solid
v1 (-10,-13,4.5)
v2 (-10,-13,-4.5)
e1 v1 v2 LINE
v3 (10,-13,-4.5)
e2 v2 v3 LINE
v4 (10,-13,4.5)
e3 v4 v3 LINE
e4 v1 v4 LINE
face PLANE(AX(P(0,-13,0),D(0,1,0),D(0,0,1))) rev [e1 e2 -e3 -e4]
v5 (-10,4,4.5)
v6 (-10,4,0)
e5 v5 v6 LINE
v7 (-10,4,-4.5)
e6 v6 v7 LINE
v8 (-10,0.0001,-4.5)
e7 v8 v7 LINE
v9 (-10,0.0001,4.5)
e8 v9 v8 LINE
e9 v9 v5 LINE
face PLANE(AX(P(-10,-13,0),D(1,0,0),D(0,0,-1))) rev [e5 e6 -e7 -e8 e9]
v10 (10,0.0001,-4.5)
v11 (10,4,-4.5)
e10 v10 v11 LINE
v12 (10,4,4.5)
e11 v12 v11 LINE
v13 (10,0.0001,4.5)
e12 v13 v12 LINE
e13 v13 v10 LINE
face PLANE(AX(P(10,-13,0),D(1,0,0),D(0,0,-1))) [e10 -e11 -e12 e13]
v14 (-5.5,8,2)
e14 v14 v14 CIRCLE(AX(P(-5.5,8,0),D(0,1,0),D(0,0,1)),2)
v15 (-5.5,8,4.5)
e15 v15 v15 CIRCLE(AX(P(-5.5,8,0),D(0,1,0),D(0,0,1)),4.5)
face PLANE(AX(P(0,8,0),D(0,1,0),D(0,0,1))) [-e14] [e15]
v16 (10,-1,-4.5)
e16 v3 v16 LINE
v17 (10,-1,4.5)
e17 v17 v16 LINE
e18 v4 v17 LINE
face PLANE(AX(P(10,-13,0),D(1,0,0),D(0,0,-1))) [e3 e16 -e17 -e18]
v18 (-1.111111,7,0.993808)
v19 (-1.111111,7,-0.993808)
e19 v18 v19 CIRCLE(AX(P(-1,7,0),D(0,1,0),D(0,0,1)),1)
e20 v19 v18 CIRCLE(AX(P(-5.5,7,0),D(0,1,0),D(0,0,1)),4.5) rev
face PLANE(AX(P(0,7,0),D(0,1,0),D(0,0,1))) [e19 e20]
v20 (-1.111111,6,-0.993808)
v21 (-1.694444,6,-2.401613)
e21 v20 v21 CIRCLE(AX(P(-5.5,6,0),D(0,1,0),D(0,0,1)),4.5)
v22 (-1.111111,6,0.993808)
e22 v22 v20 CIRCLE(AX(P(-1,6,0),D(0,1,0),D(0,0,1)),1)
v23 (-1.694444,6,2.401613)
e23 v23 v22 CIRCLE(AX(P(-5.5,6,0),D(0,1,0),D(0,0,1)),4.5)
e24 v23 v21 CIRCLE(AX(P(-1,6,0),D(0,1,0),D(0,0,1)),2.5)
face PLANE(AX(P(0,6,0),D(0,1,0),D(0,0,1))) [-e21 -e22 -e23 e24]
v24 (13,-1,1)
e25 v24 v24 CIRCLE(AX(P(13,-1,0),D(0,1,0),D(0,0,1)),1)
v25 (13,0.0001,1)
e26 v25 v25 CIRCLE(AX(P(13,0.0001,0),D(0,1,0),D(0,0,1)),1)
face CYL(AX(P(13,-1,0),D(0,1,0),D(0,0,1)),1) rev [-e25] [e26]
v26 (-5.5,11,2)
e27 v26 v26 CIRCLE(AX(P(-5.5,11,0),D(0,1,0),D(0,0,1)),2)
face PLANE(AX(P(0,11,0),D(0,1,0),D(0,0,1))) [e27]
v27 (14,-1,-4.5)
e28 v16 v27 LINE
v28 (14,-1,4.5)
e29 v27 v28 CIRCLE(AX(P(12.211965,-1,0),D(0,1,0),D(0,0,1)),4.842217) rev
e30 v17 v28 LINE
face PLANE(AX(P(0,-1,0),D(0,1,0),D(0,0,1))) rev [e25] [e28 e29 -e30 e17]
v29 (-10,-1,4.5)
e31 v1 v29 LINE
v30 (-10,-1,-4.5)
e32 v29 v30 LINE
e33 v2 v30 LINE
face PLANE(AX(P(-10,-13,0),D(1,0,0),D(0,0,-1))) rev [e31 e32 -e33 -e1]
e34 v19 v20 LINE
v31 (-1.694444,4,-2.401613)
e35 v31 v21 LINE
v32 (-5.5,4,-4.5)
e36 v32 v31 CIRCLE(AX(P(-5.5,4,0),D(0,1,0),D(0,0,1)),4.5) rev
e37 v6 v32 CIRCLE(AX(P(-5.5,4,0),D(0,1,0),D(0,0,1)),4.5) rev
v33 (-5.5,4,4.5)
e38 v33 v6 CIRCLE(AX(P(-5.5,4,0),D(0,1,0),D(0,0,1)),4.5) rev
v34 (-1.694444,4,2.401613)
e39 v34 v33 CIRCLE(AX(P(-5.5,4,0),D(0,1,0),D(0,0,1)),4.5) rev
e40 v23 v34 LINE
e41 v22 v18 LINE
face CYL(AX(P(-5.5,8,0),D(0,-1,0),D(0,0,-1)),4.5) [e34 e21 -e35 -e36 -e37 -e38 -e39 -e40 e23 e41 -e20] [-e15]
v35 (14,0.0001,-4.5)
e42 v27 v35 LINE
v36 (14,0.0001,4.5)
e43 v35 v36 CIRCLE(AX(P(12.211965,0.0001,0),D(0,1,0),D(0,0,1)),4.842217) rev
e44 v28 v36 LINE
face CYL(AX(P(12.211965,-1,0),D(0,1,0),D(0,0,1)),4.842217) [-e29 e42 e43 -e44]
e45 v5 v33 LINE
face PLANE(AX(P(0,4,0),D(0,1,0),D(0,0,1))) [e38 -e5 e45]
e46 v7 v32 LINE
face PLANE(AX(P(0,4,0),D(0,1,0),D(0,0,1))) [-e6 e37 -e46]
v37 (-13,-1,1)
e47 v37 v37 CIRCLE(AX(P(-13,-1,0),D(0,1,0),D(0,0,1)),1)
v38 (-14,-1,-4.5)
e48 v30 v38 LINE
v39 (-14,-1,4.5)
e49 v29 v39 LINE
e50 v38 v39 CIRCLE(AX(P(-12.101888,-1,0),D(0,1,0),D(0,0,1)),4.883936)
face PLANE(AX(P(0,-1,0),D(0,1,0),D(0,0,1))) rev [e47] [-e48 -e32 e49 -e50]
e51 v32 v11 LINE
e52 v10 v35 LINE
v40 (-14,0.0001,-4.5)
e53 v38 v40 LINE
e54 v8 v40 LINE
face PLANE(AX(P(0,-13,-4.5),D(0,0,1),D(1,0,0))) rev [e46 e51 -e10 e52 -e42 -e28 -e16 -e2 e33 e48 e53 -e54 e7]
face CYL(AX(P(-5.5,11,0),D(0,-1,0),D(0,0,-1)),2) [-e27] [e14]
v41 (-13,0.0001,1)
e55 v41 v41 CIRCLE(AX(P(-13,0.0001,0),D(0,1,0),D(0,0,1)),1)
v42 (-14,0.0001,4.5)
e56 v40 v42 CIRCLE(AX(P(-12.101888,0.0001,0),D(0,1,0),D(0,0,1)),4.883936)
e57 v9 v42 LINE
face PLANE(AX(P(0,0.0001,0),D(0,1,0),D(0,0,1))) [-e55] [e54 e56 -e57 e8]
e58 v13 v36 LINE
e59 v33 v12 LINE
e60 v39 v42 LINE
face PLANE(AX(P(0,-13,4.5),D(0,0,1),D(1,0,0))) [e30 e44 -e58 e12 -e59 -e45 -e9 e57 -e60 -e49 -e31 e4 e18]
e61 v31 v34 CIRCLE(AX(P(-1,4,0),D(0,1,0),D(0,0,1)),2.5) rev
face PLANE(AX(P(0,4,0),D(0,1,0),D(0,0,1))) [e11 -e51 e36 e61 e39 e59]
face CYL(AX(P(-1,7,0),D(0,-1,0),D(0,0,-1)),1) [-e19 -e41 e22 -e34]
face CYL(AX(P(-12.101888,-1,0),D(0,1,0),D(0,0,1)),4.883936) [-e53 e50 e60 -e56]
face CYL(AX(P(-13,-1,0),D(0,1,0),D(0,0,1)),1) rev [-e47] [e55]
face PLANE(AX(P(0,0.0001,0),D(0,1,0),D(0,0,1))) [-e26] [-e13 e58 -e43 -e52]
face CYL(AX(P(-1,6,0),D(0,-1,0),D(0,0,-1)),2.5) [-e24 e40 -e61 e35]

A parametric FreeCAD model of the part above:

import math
import FreeCAD as App
import Part
import Sketcher
from FreeCAD import Vector


def add_polygon(sketch, points):
    """Adds a closed chain of lines whose ends are joined by coincident constraints."""
    first, n = sketch.GeometryCount, len(points)
    for a, b in zip(points, points[1:] + points[:1]):
        sketch.addGeometry(Part.LineSegment(App.Vector(*a, 0), App.Vector(*b, 0)), False)
    for i in range(n):
        sketch.addConstraint(Sketcher.Constraint("Coincident", first + i, 2, first + (i + 1) % n, 1))

doc = App.newDocument("Part")
params = doc.addObject("Spreadsheet::Sheet", "Params")
for row, (alias, value) in enumerate([
    ("sketch1_width", "20 mm"),
    ("sketch1_height", "9 mm"),
    ("pad1_length", "4 mm"),
    ("pad1_length2", "13 mm"),
    ("sketch2_diameter", "2 mm"),
    ("sketch2_width", "4 mm"),
    ("sketch2_height", "9 mm"),
    ("pad2_length", "0.0001 mm"),
    ("pad2_length2", "1 mm"),
    ("sketch3_diameter", "2 mm"),
    ("pad3_length", "7 mm"),
    ("sketch4_diameter", "4 mm"),
    ("pad4_length", "11 mm"),
    ("sketch5_diameter", "9 mm"),
    ("pad5_length", "8 mm"),
    ("sketch6_radius", "4.5 mm"),
    ("sketch6_radius2", "2.5 mm"),
    ("pad6_length", "6 mm"),
], start=1):
    params.set(f"A{row}", alias)
    params.set(f"B{row}", "=" + value)
    params.setAlias(f"B{row}", alias)

body = doc.addObject("PartDesign::Body", "Body")

sketch1 = body.newObject("Sketcher::SketchObject", "Sketch")
sketch1.AttachmentSupport = (doc.getObject("XZ_Plane"), [""])
sketch1.MapMode = "FlatFace"
add_polygon(sketch1, [(10, 4), (10, -4), (-10, -4), (-10, 4)])
sketch1.addConstraint([
    Sketcher.Constraint("Vertical", 0),
    Sketcher.Constraint("Horizontal", 1),
    Sketcher.Constraint("Vertical", 2),
    Sketcher.Constraint("Horizontal", 3),
    Sketcher.Constraint("Symmetric", 0, 2, 2, 2, -1, 1),
    Sketcher.Constraint("DistanceX", 1, 2, 1, 1, 20.0),
    Sketcher.Constraint("DistanceY", 0, 2, 0, 1, 9.0),
])
sketch1.setExpression("Constraints[9]", "Params.sketch1_width")
sketch1.setExpression("Constraints[10]", "Params.sketch1_height")
pad1 = body.newObject("PartDesign::Pad", "Pad")
pad1.Profile = sketch1
pad1.Type = "TwoLengths"
pad1.setExpression("Length", "Params.pad1_length")
pad1.setExpression("Length2", "Params.pad1_length2")
pad1.Reversed = True

sketch2 = body.newObject("Sketcher::SketchObject", "Sketch001")
sketch2.AttachmentSupport = (doc.getObject("XZ_Plane"), [""])
sketch2.MapMode = "FlatFace"
sketch2.addGeometry([
    Part.LineSegment(Vector(-14, 4.5, 0), Vector(-10, 4.5, 0)),
    Part.LineSegment(Vector(-10, 4.5, 0), Vector(-10, -4.5, 0)),
    Part.LineSegment(Vector(-10, -4.5, 0), Vector(-14, -4.5, 0)),
    Part.ArcOfCircle(Part.Circle(Vector(-12.1, 0, 0), Vector(0, 0, 1), 4.9), math.radians(113), math.radians(247)),
    Part.Circle(Vector(-13, 0, 0), Vector(0, 0, 1), 1),
    Part.LineSegment(Vector(10, -4.5, 0), Vector(10, 4.5, 0)),
    Part.LineSegment(Vector(10, 4.5, 0), Vector(14, 4.5, 0)),
    Part.ArcOfCircle(Part.Circle(Vector(12.2, 0, 0), Vector(0, 0, 1), 4.8), math.radians(-68), math.radians(68)),
    Part.LineSegment(Vector(14, -4.5, 0), Vector(10, -4.5, 0)),
    Part.Circle(Vector(13, 0, 0), Vector(0, 0, 1), 1),
], False)
sketch2.addConstraint([
    Sketcher.Constraint("Coincident", 0, 2, 1, 1),
    Sketcher.Constraint("Coincident", 1, 2, 2, 1),
    Sketcher.Constraint("Coincident", 2, 2, 3, 2),
    Sketcher.Constraint("Coincident", 3, 1, 0, 1),
    Sketcher.Constraint("Coincident", 5, 2, 6, 1),
    Sketcher.Constraint("Coincident", 6, 2, 7, 2),
    Sketcher.Constraint("Coincident", 7, 1, 8, 1),
    Sketcher.Constraint("Coincident", 8, 2, 5, 1),
    Sketcher.Constraint("Horizontal", 0),
    Sketcher.Constraint("Vertical", 1),
    Sketcher.Constraint("Horizontal", 2),
    Sketcher.Constraint("Vertical", 5),
    Sketcher.Constraint("Horizontal", 6),
    Sketcher.Constraint("Horizontal", 8),
    Sketcher.Constraint("Equal", 4, 9),
    Sketcher.Constraint("Symmetric", 4, 3, 9, 3, -1, 1),
    Sketcher.Constraint("Symmetric", 1, 2, 5, 2, -1, 1),
    Sketcher.Constraint("Symmetric", 3, 1, 7, 1, -1, 1),
    Sketcher.Constraint("Symmetric", 3, 1, 6, 2, -2),
    Sketcher.Constraint("PointOnObject", 3, 3, -1),
    Sketcher.Constraint("PointOnObject", 4, 3, -1),
    Sketcher.Constraint("Diameter", 4, 2.0),
    Sketcher.Constraint("DistanceX", 0, 1, 0, 2, 4.0),
    Sketcher.Constraint("DistanceY", 1, 2, 1, 1, 9.0),
    Sketcher.Constraint("DistanceX", 4, 3, -1, 1, 13.0),
    Sketcher.Constraint("DistanceX", 0, 2, -1, 1, 10.0),
    Sketcher.Constraint("Radius", 3, 4.883936),
    Sketcher.Constraint("Radius", 7, 4.842217),
])
sketch2.setExpression("Constraints[21]", "Params.sketch2_diameter")
sketch2.setExpression("Constraints[22]", "Params.sketch2_width")
sketch2.setExpression("Constraints[23]", "Params.sketch2_height")
pad2 = body.newObject("PartDesign::Pad", "Pad001")
pad2.Profile = sketch2
pad2.Type = "TwoLengths"
pad2.setExpression("Length", "Params.pad2_length")
pad2.setExpression("Length2", "Params.pad2_length2")
pad2.Reversed = True

sketch3 = body.newObject("Sketcher::SketchObject", "Sketch002")
sketch3.AttachmentSupport = (doc.getObject("XZ_Plane"), [""])
sketch3.MapMode = "FlatFace"
sketch3.addGeometry(Part.Circle(Vector(-1, 0, 0), Vector(0, 0, 1), 1), False)
sketch3.addConstraint([
    Sketcher.Constraint("PointOnObject", 0, 3, -1),
    Sketcher.Constraint("Diameter", 0, 2.0),
    Sketcher.Constraint("DistanceX", 0, 3, -1, 1, 1.0),
])
sketch3.setExpression("Constraints[1]", "Params.sketch3_diameter")
pad3 = body.newObject("PartDesign::Pad", "Pad002")
pad3.Profile = sketch3
pad3.setExpression("Length", "Params.pad3_length")
pad3.Reversed = True

sketch4 = body.newObject("Sketcher::SketchObject", "Sketch003")
sketch4.AttachmentSupport = (doc.getObject("XZ_Plane"), [""])
sketch4.MapMode = "FlatFace"
sketch4.addGeometry(Part.Circle(Vector(-5.5, 0, 0), Vector(0, 0, 1), 2), False)
sketch4.addConstraint([
    Sketcher.Constraint("PointOnObject", 0, 3, -1),
    Sketcher.Constraint("Diameter", 0, 4.0),
    Sketcher.Constraint("DistanceX", 0, 3, -1, 1, 5.5),
])
sketch4.setExpression("Constraints[1]", "Params.sketch4_diameter")
pad4 = body.newObject("PartDesign::Pad", "Pad003")
pad4.Profile = sketch4
pad4.setExpression("Length", "Params.pad4_length")
pad4.Reversed = True

sketch5 = body.newObject("Sketcher::SketchObject", "Sketch004")
sketch5.AttachmentSupport = (doc.getObject("XZ_Plane"), [""])
sketch5.MapMode = "FlatFace"
sketch5.addGeometry(Part.Circle(Vector(-5.5, 0, 0), Vector(0, 0, 1), 4.5), False)
sketch5.addConstraint([
    Sketcher.Constraint("PointOnObject", 0, 3, -1),
    Sketcher.Constraint("Diameter", 0, 9.0),
    Sketcher.Constraint("DistanceX", 0, 3, -1, 1, 5.5),
])
sketch5.setExpression("Constraints[1]", "Params.sketch5_diameter")
pad5 = body.newObject("PartDesign::Pad", "Pad004")
pad5.Profile = sketch5
pad5.setExpression("Length", "Params.pad5_length")
pad5.Reversed = True

sketch6 = body.newObject("Sketcher::SketchObject", "Sketch005")
sketch6.AttachmentSupport = (doc.getObject("XZ_Plane"), [""])
sketch6.MapMode = "FlatFace"
sketch6.addGeometry([
    Part.ArcOfCircle(Part.Circle(Vector(-5.5, 0, 0), Vector(0, 0, 1), 4.5), math.radians(32), math.radians(328)),
    Part.ArcOfCircle(Part.Circle(Vector(-1, 0, 0), Vector(0, 0, 1), 2.5), math.radians(-106), math.radians(106)),
], False)
sketch6.addConstraint([
    Sketcher.Constraint("Coincident", 0, 1, 1, 2),
    Sketcher.Constraint("Coincident", 1, 1, 0, 2),
    Sketcher.Constraint("Symmetric", 0, 1, 1, 1, -1),
    Sketcher.Constraint("Radius", 0, 4.5),
    Sketcher.Constraint("Radius", 1, 2.5),
    Sketcher.Constraint("DistanceX", 1, 3, -1, 1, 1.0),
    Sketcher.Constraint("DistanceX", 0, 3, -1, 1, 5.5),
])
sketch6.setExpression("Constraints[3]", "Params.sketch6_radius")
sketch6.setExpression("Constraints[4]", "Params.sketch6_radius2")
pad6 = body.newObject("PartDesign::Pad", "Pad005")
pad6.Profile = sketch6
pad6.setExpression("Length", "Params.pad6_length")
pad6.Reversed = True

doc.recompute()
